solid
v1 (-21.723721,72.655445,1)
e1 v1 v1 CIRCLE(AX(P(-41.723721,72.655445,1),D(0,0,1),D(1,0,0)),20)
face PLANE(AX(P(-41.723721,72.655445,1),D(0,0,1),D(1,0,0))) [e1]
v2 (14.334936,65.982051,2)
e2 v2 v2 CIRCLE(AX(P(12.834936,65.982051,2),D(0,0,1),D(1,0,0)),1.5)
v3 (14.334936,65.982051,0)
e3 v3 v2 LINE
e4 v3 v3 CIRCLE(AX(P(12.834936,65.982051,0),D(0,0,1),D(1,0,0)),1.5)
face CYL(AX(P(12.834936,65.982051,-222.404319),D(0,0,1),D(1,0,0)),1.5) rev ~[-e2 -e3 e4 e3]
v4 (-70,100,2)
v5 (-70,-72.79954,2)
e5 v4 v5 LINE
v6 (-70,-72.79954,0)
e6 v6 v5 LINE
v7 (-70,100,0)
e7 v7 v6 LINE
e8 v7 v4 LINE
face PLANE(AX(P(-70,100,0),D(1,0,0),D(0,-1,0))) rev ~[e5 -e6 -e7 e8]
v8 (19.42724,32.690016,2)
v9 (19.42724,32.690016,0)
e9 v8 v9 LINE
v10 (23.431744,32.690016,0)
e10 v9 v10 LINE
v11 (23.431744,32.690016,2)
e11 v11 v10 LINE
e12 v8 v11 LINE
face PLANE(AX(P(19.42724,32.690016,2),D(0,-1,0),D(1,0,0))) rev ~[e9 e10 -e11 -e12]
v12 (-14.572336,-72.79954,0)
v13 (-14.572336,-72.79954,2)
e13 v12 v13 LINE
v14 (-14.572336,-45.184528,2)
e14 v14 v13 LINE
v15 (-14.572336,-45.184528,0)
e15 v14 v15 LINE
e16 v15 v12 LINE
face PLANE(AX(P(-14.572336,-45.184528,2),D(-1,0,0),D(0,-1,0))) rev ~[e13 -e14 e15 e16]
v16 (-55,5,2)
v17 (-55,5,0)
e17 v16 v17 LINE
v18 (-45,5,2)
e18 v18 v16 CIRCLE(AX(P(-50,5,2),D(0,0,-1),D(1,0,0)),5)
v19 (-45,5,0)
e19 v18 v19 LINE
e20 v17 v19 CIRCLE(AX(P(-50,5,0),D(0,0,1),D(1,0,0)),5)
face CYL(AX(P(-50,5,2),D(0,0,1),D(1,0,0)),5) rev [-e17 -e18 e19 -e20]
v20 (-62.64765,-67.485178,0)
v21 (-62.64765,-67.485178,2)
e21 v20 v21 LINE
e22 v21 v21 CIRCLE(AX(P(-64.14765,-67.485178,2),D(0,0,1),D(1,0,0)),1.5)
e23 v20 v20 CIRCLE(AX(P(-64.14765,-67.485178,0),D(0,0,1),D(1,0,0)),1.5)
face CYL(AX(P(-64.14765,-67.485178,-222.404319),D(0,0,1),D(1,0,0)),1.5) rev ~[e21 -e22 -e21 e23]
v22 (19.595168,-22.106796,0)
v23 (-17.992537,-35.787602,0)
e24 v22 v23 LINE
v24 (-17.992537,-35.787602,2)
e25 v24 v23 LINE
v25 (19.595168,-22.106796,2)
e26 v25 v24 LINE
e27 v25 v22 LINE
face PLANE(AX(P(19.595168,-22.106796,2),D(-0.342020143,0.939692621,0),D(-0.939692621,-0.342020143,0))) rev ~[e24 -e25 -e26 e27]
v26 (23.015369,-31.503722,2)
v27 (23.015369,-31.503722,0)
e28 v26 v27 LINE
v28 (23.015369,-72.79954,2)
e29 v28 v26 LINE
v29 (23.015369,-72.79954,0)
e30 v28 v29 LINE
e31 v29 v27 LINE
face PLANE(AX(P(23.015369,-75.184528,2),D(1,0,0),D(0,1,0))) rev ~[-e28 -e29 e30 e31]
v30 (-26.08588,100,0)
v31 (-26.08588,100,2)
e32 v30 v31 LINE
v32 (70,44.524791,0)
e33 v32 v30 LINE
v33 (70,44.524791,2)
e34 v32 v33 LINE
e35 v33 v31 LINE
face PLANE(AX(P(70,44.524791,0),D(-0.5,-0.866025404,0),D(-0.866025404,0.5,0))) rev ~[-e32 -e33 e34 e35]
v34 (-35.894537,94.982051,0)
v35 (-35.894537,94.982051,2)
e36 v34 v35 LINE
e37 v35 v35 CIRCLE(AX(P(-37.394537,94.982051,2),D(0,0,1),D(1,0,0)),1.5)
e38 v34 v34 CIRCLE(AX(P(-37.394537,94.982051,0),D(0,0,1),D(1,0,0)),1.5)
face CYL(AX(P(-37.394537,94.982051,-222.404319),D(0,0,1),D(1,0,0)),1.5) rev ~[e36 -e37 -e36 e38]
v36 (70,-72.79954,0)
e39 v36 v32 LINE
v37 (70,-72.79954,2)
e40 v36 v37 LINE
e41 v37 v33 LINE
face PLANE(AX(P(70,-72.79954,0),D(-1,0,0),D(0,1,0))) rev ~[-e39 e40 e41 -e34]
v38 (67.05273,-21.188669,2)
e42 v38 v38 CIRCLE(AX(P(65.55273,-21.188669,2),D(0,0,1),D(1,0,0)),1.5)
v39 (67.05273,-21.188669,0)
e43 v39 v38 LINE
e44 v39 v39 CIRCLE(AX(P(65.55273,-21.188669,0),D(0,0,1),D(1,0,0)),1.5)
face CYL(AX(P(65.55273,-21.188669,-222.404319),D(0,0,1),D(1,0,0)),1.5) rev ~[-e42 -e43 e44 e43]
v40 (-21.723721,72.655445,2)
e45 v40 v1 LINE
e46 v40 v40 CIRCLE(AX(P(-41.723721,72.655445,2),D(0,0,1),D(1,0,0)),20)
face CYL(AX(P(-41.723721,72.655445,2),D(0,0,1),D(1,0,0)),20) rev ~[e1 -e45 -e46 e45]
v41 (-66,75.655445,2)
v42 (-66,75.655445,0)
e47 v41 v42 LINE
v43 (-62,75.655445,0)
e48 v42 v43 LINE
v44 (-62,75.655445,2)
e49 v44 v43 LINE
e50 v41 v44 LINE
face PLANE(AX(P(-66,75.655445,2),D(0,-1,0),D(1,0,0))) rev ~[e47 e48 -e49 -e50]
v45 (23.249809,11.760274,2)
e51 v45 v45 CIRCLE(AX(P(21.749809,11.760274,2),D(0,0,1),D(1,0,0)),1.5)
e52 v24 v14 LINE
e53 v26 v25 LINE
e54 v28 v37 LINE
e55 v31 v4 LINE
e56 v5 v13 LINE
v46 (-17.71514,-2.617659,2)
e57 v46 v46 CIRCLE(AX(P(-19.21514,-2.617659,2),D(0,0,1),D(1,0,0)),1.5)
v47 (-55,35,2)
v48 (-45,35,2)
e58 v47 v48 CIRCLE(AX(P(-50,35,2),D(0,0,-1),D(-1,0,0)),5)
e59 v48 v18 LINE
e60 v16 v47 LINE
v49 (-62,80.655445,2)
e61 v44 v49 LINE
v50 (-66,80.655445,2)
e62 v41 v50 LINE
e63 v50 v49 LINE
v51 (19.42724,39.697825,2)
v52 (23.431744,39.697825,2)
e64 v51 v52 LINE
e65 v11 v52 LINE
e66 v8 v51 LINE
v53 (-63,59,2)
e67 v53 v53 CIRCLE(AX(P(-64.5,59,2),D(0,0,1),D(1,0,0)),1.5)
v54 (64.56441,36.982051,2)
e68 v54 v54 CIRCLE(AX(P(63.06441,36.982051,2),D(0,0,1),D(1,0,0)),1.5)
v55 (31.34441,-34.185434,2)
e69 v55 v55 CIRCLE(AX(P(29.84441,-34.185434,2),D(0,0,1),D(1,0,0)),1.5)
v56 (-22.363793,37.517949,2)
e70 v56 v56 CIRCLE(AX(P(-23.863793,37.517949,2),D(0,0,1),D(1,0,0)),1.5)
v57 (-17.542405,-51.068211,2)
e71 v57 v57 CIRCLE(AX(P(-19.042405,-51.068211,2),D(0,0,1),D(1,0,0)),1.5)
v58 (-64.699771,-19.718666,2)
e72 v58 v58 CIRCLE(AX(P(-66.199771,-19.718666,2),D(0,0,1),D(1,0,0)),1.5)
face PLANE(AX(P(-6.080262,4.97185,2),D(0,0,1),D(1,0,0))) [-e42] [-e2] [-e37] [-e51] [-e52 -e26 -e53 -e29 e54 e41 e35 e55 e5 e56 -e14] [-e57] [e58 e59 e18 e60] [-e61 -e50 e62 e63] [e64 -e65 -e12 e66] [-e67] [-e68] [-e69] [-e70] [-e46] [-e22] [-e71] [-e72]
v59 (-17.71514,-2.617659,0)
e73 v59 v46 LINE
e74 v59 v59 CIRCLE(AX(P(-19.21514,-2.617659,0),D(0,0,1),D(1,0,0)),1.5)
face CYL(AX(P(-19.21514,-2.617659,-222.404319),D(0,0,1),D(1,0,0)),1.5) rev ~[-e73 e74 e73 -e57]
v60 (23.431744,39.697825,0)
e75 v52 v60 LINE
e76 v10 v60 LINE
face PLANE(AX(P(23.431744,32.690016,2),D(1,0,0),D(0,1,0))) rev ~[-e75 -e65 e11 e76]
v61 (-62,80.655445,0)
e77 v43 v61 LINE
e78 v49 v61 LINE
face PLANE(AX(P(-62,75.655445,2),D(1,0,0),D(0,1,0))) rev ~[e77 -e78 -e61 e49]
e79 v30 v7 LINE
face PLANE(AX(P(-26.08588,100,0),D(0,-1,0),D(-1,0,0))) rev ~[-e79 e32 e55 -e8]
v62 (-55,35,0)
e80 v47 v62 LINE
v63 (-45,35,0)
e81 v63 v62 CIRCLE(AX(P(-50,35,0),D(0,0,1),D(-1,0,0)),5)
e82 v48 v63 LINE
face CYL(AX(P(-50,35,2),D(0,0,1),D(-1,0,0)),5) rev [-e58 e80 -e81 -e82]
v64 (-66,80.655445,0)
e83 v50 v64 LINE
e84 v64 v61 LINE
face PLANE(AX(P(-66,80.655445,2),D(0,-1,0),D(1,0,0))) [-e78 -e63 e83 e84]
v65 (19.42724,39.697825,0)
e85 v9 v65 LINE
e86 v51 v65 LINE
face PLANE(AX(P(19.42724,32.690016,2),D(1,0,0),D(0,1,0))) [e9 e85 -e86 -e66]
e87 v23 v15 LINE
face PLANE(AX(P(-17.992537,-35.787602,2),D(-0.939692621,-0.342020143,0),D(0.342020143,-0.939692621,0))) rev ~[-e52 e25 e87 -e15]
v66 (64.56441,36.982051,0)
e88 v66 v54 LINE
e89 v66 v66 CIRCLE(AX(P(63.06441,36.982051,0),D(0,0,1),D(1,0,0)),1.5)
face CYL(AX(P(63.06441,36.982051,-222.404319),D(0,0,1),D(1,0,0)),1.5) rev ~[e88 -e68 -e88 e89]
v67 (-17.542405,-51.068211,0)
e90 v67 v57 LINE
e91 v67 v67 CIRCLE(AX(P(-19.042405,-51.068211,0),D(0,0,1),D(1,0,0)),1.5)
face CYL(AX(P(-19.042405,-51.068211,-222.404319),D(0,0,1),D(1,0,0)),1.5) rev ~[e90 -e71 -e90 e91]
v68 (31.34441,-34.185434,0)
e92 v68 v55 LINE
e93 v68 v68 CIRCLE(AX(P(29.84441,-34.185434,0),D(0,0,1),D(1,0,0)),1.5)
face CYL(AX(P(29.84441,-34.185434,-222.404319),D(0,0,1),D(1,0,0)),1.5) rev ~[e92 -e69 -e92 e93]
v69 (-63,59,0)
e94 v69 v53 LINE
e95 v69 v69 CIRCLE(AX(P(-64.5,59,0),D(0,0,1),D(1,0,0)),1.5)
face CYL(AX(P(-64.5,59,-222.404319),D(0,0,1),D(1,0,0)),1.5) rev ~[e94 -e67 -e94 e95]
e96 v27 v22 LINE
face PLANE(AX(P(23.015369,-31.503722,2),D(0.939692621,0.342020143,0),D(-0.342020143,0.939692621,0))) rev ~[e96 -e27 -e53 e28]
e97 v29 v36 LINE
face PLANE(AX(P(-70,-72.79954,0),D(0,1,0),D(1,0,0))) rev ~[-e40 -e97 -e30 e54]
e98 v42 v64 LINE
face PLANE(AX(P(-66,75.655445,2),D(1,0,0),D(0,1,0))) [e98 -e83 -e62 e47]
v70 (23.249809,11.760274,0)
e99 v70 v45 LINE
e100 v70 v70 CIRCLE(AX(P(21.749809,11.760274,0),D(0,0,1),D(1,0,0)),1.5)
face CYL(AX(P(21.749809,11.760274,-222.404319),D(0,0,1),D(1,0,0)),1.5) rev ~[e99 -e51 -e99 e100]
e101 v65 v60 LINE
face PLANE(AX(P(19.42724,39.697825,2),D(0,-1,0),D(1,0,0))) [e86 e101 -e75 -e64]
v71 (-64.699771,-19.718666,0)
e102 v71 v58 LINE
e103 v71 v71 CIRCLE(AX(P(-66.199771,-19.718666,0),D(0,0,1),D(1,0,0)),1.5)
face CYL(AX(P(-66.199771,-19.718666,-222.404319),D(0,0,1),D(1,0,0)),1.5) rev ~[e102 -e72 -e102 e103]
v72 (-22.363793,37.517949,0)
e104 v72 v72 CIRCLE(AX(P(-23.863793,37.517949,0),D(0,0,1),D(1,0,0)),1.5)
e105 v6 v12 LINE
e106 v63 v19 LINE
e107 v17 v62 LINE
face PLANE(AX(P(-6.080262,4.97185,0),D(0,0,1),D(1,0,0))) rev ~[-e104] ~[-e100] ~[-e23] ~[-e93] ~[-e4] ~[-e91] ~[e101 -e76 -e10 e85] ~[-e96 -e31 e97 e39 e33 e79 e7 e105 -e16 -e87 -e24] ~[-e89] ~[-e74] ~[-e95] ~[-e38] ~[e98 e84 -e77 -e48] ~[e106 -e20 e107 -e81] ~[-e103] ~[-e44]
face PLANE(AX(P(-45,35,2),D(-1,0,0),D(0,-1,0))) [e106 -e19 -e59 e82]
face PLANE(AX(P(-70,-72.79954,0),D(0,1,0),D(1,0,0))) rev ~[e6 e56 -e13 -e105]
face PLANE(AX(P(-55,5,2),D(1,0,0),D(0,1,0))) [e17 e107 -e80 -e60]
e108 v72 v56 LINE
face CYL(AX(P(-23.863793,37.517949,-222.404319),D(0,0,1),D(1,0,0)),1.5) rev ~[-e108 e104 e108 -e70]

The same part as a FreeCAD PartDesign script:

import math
import FreeCAD as App
import Part
import Sketcher
from FreeCAD import Vector
Q = App.Units.Quantity


def add_polygon(sketch, points):
    """Adds a closed chain of lines whose ends are joined by coincident constraints."""
    first, n = sketch.GeometryCount, len(points)
    for a, b in zip(points, points[1:] + points[:1]):
        sketch.addGeometry(Part.LineSegment(App.Vector(*a, 0), App.Vector(*b, 0)), False)
    for i in range(n):
        sketch.addConstraint(Sketcher.Constraint("Coincident", first + i, 2, first + (i + 1) % n, 1))

doc = App.newDocument("Part")
body = doc.addObject("PartDesign::Body", "Body")

# Sketch on XY plane
sketch1 = doc.addObject("Sketcher::SketchObject", "Sketch")
body.addObject(sketch1)
sketch1.AttachmentSupport = (doc.XY_Plane, [""])
sketch1.MapMode = "FlatFace"
add_polygon(sketch1, [(-70, 100), (-70, -73), (70, -73), (70, 45), (-26, 100)])  # lines 0-4
sketch1.addConstraint([
    Sketcher.Constraint("Vertical", 0),
    Sketcher.Constraint("Horizontal", 1),
    Sketcher.Constraint("Vertical", 2),
    Sketcher.Constraint("Horizontal", 4),
    Sketcher.Constraint("DistanceX", 1, 1, 1, 2, 140.0),
    Sketcher.Constraint("Angle", 3, Q("150 deg")),
    Sketcher.Constraint("DistanceX", 0, 2, -1, 1, 70.0),
    Sketcher.Constraint("DistanceY", -1, 1, 3, 2, 100.0),
    Sketcher.Constraint("DistanceX", 4, 2, 4, 1, 43.91412),
    Sketcher.Constraint("DistanceY", 0, 2, 0, 1, 172.79954),
])
pad1 = doc.addObject("PartDesign::Pad", "Pad")
body.addObject(pad1)
pad1.Profile = sketch1
pad1.Length = 2

# Sketch on XY plane
sketch2 = doc.addObject("Sketcher::SketchObject", "Sketch001")
body.addObject(sketch2)
sketch2.AttachmentSupport = (doc.XY_Plane, [""])
sketch2.MapMode = "FlatFace"
sketch2.AttachmentOffset = App.Placement(Vector(0, 0, 2), App.Rotation())
add_polygon(sketch2, [(19.4, 39.7), (19.4, 32.7), (23.4, 32.7), (23.4, 39.7)])  # lines 0-3
add_polygon(sketch2, [(-66, 80.7), (-66, 75.7), (-62, 75.7), (-62, 80.7)])  # lines 4-7
add_polygon(sketch2, [(-14.6, -75.2), (23, -75.2), (23, -31.5), (19.6, -22.1), (-18, -35.8), (-14.6, -45.2)])  # lines 8-13
sketch2.addConstraint([
    Sketcher.Constraint("Vertical", 0),
    Sketcher.Constraint("Horizontal", 1),
    Sketcher.Constraint("Vertical", 2),
    Sketcher.Constraint("Horizontal", 3),
    Sketcher.Constraint("Vertical", 4),
    Sketcher.Constraint("Horizontal", 5),
    Sketcher.Constraint("Vertical", 6),
    Sketcher.Constraint("Horizontal", 7),
    Sketcher.Constraint("Horizontal", 8),
    Sketcher.Constraint("Vertical", 9),
    Sketcher.Constraint("Vertical", 13),
    Sketcher.Constraint("Perpendicular", 10, 11),
    Sketcher.Constraint("Perpendicular", 11, 12),
    Sketcher.Constraint("Equal", 10, 12),
    Sketcher.Constraint("DistanceX", 5, 1, 5, 2, 4.0),
    Sketcher.Constraint("DistanceY", 4, 2, 4, 1, 5.0),
    Sketcher.Constraint("DistanceY", 13, 2, 13, 1, 30.0),
    Sketcher.Constraint("Angle", 10, Q("110 deg")),
    Sketcher.Constraint("Distance", 10, 10.0),
    Sketcher.Constraint("Distance", 11, 40.0),
    Sketcher.Constraint("DistanceX", 4, 2, -1, 1, 66.0),
    Sketcher.Constraint("DistanceY", 0, 2, 0, 1, 7.007809),
    Sketcher.Constraint("DistanceY", 11, 2, -1, 1, 35.787602),
    Sketcher.Constraint("DistanceX", 1, 1, 1, 2, 4.004505),
    Sketcher.Constraint("DistanceX", -1, 1, 0, 2, 19.42724),
    Sketcher.Constraint("DistanceX", -1, 1, 8, 2, 23.015369),
    Sketcher.Constraint("DistanceY", 3, 2, 4, 2, 35.95762),
    Sketcher.Constraint("DistanceY", 9, 2, 1, 2, 64.193738),
])
pocket1 = doc.addObject("PartDesign::Pocket", "Pocket")
body.addObject(pocket1)
pocket1.Profile = sketch2
pocket1.Length = 10

# Sketch on XY plane
sketch3 = doc.addObject("Sketcher::SketchObject", "Sketch002")
body.addObject(sketch3)
sketch3.AttachmentSupport = (doc.XY_Plane, [""])
sketch3.MapMode = "FlatFace"
sketch3.AttachmentOffset = App.Placement(Vector(0, 0, 2), App.Rotation())
sketch3.addGeometry(Part.Circle(Vector(-42, 73, 0), Vector(0, 0, 1), 20), False)
sketch3.addConstraint([
    Sketcher.Constraint("Diameter", 0, 40.0),
    Sketcher.Constraint("DistanceX", 0, 3, -1, 1, 41.723721),
    Sketcher.Constraint("DistanceY", -1, 1, 0, 3, 72.655445),
])
pocket2 = doc.addObject("PartDesign::Pocket", "Pocket001")
body.addObject(pocket2)
pocket2.Profile = sketch3
pocket2.Length = 1

# Sketch on XY plane
sketch4 = doc.addObject("Sketcher::SketchObject", "Sketch003")
body.addObject(sketch4)
sketch4.AttachmentSupport = (doc.XY_Plane, [""])
sketch4.MapMode = "FlatFace"
sketch4.addGeometry([
    Part.Circle(Vector(-66.2, -19.7, 0), Vector(0, 0, 1), 1.5),  # 0
    Part.Circle(Vector(-64.1, -67.5, 0), Vector(0, 0, 1), 1.5),  # 1
    Part.Circle(Vector(-19, -51.1, 0), Vector(0, 0, 1), 1.5),  # 2
    Part.Circle(Vector(-19.2, -2.6, 0), Vector(0, 0, 1), 1.5),  # 3
    Part.Circle(Vector(21.7, 11.8, 0), Vector(0, 0, 1), 1.5),  # 4
    Part.Circle(Vector(29.8, -34.2, 0), Vector(0, 0, 1), 1.5),  # 5
    Part.Circle(Vector(65.6, -21.2, 0), Vector(0, 0, 1), 1.5),  # 6
    Part.Circle(Vector(63.1, 37, 0), Vector(0, 0, 1), 1.5),  # 7
    Part.Circle(Vector(-23.9, 37.5, 0), Vector(0, 0, 1), 1.5),  # 8
    Part.Circle(Vector(12.8, 66, 0), Vector(0, 0, 1), 1.5),  # 9
    Part.Circle(Vector(-37.4, 95, 0), Vector(0, 0, 1), 1.5),  # 10
    Part.Circle(Vector(-64.5, 59, 0), Vector(0, 0, 1), 1.5),  # 11
], False)
sketch4.addConstraint([
    Sketcher.Constraint("Equal", 0, 1),
    Sketcher.Constraint("Equal", 1, 2),
    Sketcher.Constraint("Equal", 2, 3),
    Sketcher.Constraint("Equal", 3, 4),
    Sketcher.Constraint("Equal", 4, 5),
    Sketcher.Constraint("Equal", 5, 6),
    Sketcher.Constraint("Equal", 6, 7),
    Sketcher.Constraint("Equal", 7, 8),
    Sketcher.Constraint("Equal", 8, 9),
    Sketcher.Constraint("Equal", 9, 10),
    Sketcher.Constraint("Equal", 10, 11),
    Sketcher.Constraint("Diameter", 0, 3.0),
    Sketcher.Constraint("DistanceY", -1, 1, 11, 3, 59.0),
    Sketcher.Constraint("DistanceY", 7, 3, 9, 3, 29.0),
    Sketcher.Constraint("DistanceY", 9, 3, 10, 3, 29.0),
    Sketcher.Constraint("DistanceX", 11, 3, -1, 1, 64.5),
    Sketcher.Constraint("DistanceX", 5, 3, 7, 3, 33.22),
    Sketcher.Constraint("DistanceX", 4, 3, 5, 3, 8.094601),
    Sketcher.Constraint("DistanceX", 0, 3, 6, 3, 131.752501),
    Sketcher.Constraint("DistanceY", 7, 3, 8, 3, 0.535898),
    Sketcher.Constraint("DistanceX", 0, 3, -1, 1, 66.199771),
    Sketcher.Constraint("DistanceX", 1, 3, -1, 1, 64.14765),
    Sketcher.Constraint("DistanceY", 2, 3, -1, 1, 51.068211),
    Sketcher.Constraint("DistanceX", 3, 3, -1, 1, 19.21514),
    Sketcher.Constraint("DistanceY", 3, 3, -1, 1, 2.617659),
    Sketcher.Constraint("DistanceX", -1, 1, 4, 3, 21.749809),
    Sketcher.Constraint("DistanceY", 6, 3, -1, 1, 21.188669),
    Sketcher.Constraint("DistanceY", -1, 1, 7, 3, 36.982051),
    Sketcher.Constraint("DistanceY", 1, 3, 0, 3, 47.766511),
    Sketcher.Constraint("DistanceY", 1, 3, 3, 3, 64.867518),
    Sketcher.Constraint("DistanceY", 0, 3, 4, 3, 31.47894),
    Sketcher.Constraint("DistanceY", 5, 3, 4, 3, 45.945708),
    Sketcher.Constraint("DistanceX", 8, 3, 2, 3, 4.821389),
    Sketcher.Constraint("DistanceX", 8, 3, 9, 3, 36.69873),
    Sketcher.Constraint("DistanceX", 2, 3, -1, 1, 19.042405),
    Sketcher.Constraint("DistanceX", 10, 3, -1, 1, 37.394537),
])
doc.recompute()
hole = doc.addObject("PartDesign::Hole", "Hole")
body.addObject(hole)
hole.Profile = sketch4
hole.ThreadType = "None"
hole.Diameter = 3
hole.DepthType = "ThroughAll"
hole.Reversed = True

# Sketch on XY plane
sketch5 = doc.addObject("Sketcher::SketchObject", "Sketch004")
body.addObject(sketch5)
sketch5.AttachmentSupport = (doc.XY_Plane, [""])
sketch5.MapMode = "FlatFace"
sketch5.AttachmentOffset = App.Placement(Vector(0, 0, 2), App.Rotation())
sketch5.addGeometry([
    Part.LineSegment(Vector(-45, 5, 0), Vector(-45, 35, 0)),
    Part.ArcOfCircle(Part.Circle(Vector(-50, 35, 0), Vector(0, 0, 1), 5), math.radians(0), math.radians(180)),
    Part.LineSegment(Vector(-55, 35, 0), Vector(-55, 5, 0)),
    Part.ArcOfCircle(Part.Circle(Vector(-50, 5, 0), Vector(0, 0, 1), 5), math.radians(180), math.radians(360)),
], False)
sketch5.addConstraint([
    Sketcher.Constraint("Tangent", 0, 2, 1, 1),
    Sketcher.Constraint("Tangent", 1, 2, 2, 1),
    Sketcher.Constraint("Tangent", 2, 2, 3, 1),
    Sketcher.Constraint("Tangent", 3, 2, 0, 1),
    Sketcher.Constraint("Vertical", 0),
    Sketcher.Constraint("Vertical", 2),
    Sketcher.Constraint("Radius", 1, 5.0),
    Sketcher.Constraint("DistanceY", 0, 1, 0, 2, 30.0),
    Sketcher.Constraint("DistanceX", 1, 3, -1, 1, 50.0),
    Sketcher.Constraint("DistanceY", -1, 1, 1, 3, 35.0),
])
pocket3 = doc.addObject("PartDesign::Pocket", "Pocket002")
body.addObject(pocket3)
pocket3.Profile = sketch5
pocket3.Type = "ThroughAll"

doc.recompute()
